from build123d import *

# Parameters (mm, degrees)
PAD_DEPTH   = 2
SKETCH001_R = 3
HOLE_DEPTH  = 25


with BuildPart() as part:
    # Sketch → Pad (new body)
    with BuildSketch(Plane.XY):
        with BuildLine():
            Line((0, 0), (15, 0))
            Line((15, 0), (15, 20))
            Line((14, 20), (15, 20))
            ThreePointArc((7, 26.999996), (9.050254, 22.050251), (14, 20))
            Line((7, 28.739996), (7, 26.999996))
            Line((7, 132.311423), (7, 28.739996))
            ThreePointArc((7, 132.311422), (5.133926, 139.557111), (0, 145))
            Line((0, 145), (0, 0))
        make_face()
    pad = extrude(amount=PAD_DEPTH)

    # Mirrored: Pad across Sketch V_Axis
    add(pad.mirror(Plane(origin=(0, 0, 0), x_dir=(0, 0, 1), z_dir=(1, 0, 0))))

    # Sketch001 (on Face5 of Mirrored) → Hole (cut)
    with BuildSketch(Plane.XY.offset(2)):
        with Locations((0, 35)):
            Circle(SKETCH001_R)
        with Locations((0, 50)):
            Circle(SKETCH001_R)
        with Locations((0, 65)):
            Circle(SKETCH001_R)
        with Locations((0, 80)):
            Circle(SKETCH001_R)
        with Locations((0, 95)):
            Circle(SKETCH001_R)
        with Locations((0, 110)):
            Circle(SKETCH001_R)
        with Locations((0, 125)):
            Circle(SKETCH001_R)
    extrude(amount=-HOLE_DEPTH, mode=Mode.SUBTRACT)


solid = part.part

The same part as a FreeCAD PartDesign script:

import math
import FreeCAD as App
import Part
import Sketcher

V = App.Vector
Q = App.Units.Quantity

doc = App.newDocument("Part")
body = doc.addObject("PartDesign::Body", "Body")

sketch1 = body.newObject("Sketcher::SketchObject", "Sketch")
sketch1.AttachmentSupport = (doc.getObject("XY_Plane"), [""])
sketch1.MapMode = "FlatFace"
sketch1.addGeometry(Part.LineSegment(V(0, 0, 0), V(15, 0, 0)), False)
sketch1.addGeometry(Part.LineSegment(V(15, 0, 0), V(15, 20, 0)), False)
sketch1.addGeometry(Part.LineSegment(V(15, 20, 0), V(14, 20, 0)), False)
sketch1.addGeometry(Part.ArcOfCircle(Part.Circle(V(14, 27, 0), V(0, 0, 1), 7), math.radians(-179.999968), math.radians(-89.999999)), False)
sketch1.addGeometry(Part.LineSegment(V(7, 26.999996, 0), V(7, 132.311423, 0)), False)
sketch1.addGeometry(Part.ArcOfCircle(Part.Circle(V(-7.999997, 132.311424, 0), V(0, 0, 1), 14.999997), math.radians(-0.000005), math.radians(57.769055)), False)
sketch1.addGeometry(Part.LineSegment(V(0, 145, 0), V(0, 0, 0)), False)
sketch1.addConstraint(Sketcher.Constraint("Coincident", 0, 2, 1, 1))
sketch1.addConstraint(Sketcher.Constraint("Coincident", 1, 2, 2, 1))
sketch1.addConstraint(Sketcher.Constraint("Tangent", 2, 2, 3, 2))
sketch1.addConstraint(Sketcher.Constraint("Tangent", 3, 1, 4, 1))
sketch1.addConstraint(Sketcher.Constraint("Tangent", 4, 2, 5, 1))
sketch1.addConstraint(Sketcher.Constraint("Coincident", 5, 2, 6, 1))
sketch1.addConstraint(Sketcher.Constraint("Coincident", 6, 2, 0, 1))
sketch1.addConstraint(Sketcher.Constraint("Horizontal", 0))
sketch1.addConstraint(Sketcher.Constraint("Vertical", 1))
sketch1.addConstraint(Sketcher.Constraint("Horizontal", 2))
sketch1.addConstraint(Sketcher.Constraint("Vertical", 4))
sketch1.addConstraint(Sketcher.Constraint("Vertical", 6))
sketch1.addConstraint(Sketcher.Constraint("Coincident", 6, 2, -1, 1))
sketch1.addConstraint(Sketcher.Constraint("Radius", 3, Q("7 mm")))
sketch1.addConstraint(Sketcher.Constraint("DistanceX", 0, 1, 0, 2, Q("15 mm")))
sketch1.addConstraint(Sketcher.Constraint("DistanceX", 2, 2, 2, 1, Q("1 mm")))
sketch1.addConstraint(Sketcher.Constraint("DistanceY", 1, 1, 1, 2, Q("20 mm")))
sketch1.addConstraint(Sketcher.Constraint("DistanceY", 6, 2, 6, 1, Q("145 mm")))
sketch1.addConstraint(Sketcher.Constraint("Radius", 5, Q("14.999997 mm")))
pad1 = body.newObject("PartDesign::Pad", "Pad")
pad1.Profile = sketch1
pad1.Length = 2
doc.recompute()

mirrored = body.newObject("PartDesign::Mirrored", "Mirrored")
mirrored.Originals = [pad1]
mirrored.MirrorPlane = (doc.getObject("YZ_Plane"), [""])
body.Tip = mirrored

sketch2 = body.newObject("Sketcher::SketchObject", "Sketch001")
sketch2.AttachmentSupport = (doc.getObject("XY_Plane"), [""])
sketch2.MapMode = "FlatFace"
sketch2.AttachmentOffset = App.Placement(V(0, 0, 2), App.Rotation())
sketch2.addGeometry(Part.Circle(V(0, 35, 0), V(0, 0, 1), 3), False)
sketch2.addGeometry(Part.Circle(V(0, 50, 0), V(0, 0, 1), 3), False)
sketch2.addGeometry(Part.Circle(V(0, 65, 0), V(0, 0, 1), 3), False)
sketch2.addGeometry(Part.Circle(V(0, 80, 0), V(0, 0, 1), 3), False)
sketch2.addGeometry(Part.Circle(V(0, 95, 0), V(0, 0, 1), 3), False)
sketch2.addGeometry(Part.Circle(V(0, 110, 0), V(0, 0, 1), 3), False)
sketch2.addGeometry(Part.Circle(V(0, 125, 0), V(0, 0, 1), 3), False)
sketch2.addConstraint(Sketcher.Constraint("Equal", 0, 1))
sketch2.addConstraint(Sketcher.Constraint("Equal", 1, 2))
sketch2.addConstraint(Sketcher.Constraint("Equal", 2, 3))
sketch2.addConstraint(Sketcher.Constraint("Equal", 3, 4))
sketch2.addConstraint(Sketcher.Constraint("Equal", 4, 5))
sketch2.addConstraint(Sketcher.Constraint("Equal", 5, 6))
sketch2.addConstraint(Sketcher.Constraint("PointOnObject", 0, 3, -2))
sketch2.addConstraint(Sketcher.Constraint("PointOnObject", 1, 3, -2))
sketch2.addConstraint(Sketcher.Constraint("PointOnObject", 2, 3, -2))
sketch2.addConstraint(Sketcher.Constraint("PointOnObject", 3, 3, -2))
sketch2.addConstraint(Sketcher.Constraint("PointOnObject", 4, 3, -2))
sketch2.addConstraint(Sketcher.Constraint("PointOnObject", 5, 3, -2))
sketch2.addConstraint(Sketcher.Constraint("PointOnObject", 6, 3, -2))
sketch2.addConstraint(Sketcher.Constraint("Diameter", 0, Q("6 mm")))
sketch2.addConstraint(Sketcher.Constraint("DistanceY", -1, 1, 0, 3, Q("35 mm")))
sketch2.addConstraint(Sketcher.Constraint("DistanceY", -1, 1, 1, 3, Q("50 mm")))
sketch2.addConstraint(Sketcher.Constraint("DistanceY", -1, 1, 2, 3, Q("65 mm")))
sketch2.addConstraint(Sketcher.Constraint("DistanceY", -1, 1, 3, 3, Q("80 mm")))
sketch2.addConstraint(Sketcher.Constraint("DistanceY", -1, 1, 4, 3, Q("95 mm")))
sketch2.addConstraint(Sketcher.Constraint("DistanceY", -1, 1, 5, 3, Q("110 mm")))
sketch2.addConstraint(Sketcher.Constraint("DistanceY", -1, 1, 6, 3, Q("125 mm")))
pocket1 = body.newObject("PartDesign::Pocket", "Pocket")
pocket1.Profile = sketch2
pocket1.Length = 25

doc.recompute()
